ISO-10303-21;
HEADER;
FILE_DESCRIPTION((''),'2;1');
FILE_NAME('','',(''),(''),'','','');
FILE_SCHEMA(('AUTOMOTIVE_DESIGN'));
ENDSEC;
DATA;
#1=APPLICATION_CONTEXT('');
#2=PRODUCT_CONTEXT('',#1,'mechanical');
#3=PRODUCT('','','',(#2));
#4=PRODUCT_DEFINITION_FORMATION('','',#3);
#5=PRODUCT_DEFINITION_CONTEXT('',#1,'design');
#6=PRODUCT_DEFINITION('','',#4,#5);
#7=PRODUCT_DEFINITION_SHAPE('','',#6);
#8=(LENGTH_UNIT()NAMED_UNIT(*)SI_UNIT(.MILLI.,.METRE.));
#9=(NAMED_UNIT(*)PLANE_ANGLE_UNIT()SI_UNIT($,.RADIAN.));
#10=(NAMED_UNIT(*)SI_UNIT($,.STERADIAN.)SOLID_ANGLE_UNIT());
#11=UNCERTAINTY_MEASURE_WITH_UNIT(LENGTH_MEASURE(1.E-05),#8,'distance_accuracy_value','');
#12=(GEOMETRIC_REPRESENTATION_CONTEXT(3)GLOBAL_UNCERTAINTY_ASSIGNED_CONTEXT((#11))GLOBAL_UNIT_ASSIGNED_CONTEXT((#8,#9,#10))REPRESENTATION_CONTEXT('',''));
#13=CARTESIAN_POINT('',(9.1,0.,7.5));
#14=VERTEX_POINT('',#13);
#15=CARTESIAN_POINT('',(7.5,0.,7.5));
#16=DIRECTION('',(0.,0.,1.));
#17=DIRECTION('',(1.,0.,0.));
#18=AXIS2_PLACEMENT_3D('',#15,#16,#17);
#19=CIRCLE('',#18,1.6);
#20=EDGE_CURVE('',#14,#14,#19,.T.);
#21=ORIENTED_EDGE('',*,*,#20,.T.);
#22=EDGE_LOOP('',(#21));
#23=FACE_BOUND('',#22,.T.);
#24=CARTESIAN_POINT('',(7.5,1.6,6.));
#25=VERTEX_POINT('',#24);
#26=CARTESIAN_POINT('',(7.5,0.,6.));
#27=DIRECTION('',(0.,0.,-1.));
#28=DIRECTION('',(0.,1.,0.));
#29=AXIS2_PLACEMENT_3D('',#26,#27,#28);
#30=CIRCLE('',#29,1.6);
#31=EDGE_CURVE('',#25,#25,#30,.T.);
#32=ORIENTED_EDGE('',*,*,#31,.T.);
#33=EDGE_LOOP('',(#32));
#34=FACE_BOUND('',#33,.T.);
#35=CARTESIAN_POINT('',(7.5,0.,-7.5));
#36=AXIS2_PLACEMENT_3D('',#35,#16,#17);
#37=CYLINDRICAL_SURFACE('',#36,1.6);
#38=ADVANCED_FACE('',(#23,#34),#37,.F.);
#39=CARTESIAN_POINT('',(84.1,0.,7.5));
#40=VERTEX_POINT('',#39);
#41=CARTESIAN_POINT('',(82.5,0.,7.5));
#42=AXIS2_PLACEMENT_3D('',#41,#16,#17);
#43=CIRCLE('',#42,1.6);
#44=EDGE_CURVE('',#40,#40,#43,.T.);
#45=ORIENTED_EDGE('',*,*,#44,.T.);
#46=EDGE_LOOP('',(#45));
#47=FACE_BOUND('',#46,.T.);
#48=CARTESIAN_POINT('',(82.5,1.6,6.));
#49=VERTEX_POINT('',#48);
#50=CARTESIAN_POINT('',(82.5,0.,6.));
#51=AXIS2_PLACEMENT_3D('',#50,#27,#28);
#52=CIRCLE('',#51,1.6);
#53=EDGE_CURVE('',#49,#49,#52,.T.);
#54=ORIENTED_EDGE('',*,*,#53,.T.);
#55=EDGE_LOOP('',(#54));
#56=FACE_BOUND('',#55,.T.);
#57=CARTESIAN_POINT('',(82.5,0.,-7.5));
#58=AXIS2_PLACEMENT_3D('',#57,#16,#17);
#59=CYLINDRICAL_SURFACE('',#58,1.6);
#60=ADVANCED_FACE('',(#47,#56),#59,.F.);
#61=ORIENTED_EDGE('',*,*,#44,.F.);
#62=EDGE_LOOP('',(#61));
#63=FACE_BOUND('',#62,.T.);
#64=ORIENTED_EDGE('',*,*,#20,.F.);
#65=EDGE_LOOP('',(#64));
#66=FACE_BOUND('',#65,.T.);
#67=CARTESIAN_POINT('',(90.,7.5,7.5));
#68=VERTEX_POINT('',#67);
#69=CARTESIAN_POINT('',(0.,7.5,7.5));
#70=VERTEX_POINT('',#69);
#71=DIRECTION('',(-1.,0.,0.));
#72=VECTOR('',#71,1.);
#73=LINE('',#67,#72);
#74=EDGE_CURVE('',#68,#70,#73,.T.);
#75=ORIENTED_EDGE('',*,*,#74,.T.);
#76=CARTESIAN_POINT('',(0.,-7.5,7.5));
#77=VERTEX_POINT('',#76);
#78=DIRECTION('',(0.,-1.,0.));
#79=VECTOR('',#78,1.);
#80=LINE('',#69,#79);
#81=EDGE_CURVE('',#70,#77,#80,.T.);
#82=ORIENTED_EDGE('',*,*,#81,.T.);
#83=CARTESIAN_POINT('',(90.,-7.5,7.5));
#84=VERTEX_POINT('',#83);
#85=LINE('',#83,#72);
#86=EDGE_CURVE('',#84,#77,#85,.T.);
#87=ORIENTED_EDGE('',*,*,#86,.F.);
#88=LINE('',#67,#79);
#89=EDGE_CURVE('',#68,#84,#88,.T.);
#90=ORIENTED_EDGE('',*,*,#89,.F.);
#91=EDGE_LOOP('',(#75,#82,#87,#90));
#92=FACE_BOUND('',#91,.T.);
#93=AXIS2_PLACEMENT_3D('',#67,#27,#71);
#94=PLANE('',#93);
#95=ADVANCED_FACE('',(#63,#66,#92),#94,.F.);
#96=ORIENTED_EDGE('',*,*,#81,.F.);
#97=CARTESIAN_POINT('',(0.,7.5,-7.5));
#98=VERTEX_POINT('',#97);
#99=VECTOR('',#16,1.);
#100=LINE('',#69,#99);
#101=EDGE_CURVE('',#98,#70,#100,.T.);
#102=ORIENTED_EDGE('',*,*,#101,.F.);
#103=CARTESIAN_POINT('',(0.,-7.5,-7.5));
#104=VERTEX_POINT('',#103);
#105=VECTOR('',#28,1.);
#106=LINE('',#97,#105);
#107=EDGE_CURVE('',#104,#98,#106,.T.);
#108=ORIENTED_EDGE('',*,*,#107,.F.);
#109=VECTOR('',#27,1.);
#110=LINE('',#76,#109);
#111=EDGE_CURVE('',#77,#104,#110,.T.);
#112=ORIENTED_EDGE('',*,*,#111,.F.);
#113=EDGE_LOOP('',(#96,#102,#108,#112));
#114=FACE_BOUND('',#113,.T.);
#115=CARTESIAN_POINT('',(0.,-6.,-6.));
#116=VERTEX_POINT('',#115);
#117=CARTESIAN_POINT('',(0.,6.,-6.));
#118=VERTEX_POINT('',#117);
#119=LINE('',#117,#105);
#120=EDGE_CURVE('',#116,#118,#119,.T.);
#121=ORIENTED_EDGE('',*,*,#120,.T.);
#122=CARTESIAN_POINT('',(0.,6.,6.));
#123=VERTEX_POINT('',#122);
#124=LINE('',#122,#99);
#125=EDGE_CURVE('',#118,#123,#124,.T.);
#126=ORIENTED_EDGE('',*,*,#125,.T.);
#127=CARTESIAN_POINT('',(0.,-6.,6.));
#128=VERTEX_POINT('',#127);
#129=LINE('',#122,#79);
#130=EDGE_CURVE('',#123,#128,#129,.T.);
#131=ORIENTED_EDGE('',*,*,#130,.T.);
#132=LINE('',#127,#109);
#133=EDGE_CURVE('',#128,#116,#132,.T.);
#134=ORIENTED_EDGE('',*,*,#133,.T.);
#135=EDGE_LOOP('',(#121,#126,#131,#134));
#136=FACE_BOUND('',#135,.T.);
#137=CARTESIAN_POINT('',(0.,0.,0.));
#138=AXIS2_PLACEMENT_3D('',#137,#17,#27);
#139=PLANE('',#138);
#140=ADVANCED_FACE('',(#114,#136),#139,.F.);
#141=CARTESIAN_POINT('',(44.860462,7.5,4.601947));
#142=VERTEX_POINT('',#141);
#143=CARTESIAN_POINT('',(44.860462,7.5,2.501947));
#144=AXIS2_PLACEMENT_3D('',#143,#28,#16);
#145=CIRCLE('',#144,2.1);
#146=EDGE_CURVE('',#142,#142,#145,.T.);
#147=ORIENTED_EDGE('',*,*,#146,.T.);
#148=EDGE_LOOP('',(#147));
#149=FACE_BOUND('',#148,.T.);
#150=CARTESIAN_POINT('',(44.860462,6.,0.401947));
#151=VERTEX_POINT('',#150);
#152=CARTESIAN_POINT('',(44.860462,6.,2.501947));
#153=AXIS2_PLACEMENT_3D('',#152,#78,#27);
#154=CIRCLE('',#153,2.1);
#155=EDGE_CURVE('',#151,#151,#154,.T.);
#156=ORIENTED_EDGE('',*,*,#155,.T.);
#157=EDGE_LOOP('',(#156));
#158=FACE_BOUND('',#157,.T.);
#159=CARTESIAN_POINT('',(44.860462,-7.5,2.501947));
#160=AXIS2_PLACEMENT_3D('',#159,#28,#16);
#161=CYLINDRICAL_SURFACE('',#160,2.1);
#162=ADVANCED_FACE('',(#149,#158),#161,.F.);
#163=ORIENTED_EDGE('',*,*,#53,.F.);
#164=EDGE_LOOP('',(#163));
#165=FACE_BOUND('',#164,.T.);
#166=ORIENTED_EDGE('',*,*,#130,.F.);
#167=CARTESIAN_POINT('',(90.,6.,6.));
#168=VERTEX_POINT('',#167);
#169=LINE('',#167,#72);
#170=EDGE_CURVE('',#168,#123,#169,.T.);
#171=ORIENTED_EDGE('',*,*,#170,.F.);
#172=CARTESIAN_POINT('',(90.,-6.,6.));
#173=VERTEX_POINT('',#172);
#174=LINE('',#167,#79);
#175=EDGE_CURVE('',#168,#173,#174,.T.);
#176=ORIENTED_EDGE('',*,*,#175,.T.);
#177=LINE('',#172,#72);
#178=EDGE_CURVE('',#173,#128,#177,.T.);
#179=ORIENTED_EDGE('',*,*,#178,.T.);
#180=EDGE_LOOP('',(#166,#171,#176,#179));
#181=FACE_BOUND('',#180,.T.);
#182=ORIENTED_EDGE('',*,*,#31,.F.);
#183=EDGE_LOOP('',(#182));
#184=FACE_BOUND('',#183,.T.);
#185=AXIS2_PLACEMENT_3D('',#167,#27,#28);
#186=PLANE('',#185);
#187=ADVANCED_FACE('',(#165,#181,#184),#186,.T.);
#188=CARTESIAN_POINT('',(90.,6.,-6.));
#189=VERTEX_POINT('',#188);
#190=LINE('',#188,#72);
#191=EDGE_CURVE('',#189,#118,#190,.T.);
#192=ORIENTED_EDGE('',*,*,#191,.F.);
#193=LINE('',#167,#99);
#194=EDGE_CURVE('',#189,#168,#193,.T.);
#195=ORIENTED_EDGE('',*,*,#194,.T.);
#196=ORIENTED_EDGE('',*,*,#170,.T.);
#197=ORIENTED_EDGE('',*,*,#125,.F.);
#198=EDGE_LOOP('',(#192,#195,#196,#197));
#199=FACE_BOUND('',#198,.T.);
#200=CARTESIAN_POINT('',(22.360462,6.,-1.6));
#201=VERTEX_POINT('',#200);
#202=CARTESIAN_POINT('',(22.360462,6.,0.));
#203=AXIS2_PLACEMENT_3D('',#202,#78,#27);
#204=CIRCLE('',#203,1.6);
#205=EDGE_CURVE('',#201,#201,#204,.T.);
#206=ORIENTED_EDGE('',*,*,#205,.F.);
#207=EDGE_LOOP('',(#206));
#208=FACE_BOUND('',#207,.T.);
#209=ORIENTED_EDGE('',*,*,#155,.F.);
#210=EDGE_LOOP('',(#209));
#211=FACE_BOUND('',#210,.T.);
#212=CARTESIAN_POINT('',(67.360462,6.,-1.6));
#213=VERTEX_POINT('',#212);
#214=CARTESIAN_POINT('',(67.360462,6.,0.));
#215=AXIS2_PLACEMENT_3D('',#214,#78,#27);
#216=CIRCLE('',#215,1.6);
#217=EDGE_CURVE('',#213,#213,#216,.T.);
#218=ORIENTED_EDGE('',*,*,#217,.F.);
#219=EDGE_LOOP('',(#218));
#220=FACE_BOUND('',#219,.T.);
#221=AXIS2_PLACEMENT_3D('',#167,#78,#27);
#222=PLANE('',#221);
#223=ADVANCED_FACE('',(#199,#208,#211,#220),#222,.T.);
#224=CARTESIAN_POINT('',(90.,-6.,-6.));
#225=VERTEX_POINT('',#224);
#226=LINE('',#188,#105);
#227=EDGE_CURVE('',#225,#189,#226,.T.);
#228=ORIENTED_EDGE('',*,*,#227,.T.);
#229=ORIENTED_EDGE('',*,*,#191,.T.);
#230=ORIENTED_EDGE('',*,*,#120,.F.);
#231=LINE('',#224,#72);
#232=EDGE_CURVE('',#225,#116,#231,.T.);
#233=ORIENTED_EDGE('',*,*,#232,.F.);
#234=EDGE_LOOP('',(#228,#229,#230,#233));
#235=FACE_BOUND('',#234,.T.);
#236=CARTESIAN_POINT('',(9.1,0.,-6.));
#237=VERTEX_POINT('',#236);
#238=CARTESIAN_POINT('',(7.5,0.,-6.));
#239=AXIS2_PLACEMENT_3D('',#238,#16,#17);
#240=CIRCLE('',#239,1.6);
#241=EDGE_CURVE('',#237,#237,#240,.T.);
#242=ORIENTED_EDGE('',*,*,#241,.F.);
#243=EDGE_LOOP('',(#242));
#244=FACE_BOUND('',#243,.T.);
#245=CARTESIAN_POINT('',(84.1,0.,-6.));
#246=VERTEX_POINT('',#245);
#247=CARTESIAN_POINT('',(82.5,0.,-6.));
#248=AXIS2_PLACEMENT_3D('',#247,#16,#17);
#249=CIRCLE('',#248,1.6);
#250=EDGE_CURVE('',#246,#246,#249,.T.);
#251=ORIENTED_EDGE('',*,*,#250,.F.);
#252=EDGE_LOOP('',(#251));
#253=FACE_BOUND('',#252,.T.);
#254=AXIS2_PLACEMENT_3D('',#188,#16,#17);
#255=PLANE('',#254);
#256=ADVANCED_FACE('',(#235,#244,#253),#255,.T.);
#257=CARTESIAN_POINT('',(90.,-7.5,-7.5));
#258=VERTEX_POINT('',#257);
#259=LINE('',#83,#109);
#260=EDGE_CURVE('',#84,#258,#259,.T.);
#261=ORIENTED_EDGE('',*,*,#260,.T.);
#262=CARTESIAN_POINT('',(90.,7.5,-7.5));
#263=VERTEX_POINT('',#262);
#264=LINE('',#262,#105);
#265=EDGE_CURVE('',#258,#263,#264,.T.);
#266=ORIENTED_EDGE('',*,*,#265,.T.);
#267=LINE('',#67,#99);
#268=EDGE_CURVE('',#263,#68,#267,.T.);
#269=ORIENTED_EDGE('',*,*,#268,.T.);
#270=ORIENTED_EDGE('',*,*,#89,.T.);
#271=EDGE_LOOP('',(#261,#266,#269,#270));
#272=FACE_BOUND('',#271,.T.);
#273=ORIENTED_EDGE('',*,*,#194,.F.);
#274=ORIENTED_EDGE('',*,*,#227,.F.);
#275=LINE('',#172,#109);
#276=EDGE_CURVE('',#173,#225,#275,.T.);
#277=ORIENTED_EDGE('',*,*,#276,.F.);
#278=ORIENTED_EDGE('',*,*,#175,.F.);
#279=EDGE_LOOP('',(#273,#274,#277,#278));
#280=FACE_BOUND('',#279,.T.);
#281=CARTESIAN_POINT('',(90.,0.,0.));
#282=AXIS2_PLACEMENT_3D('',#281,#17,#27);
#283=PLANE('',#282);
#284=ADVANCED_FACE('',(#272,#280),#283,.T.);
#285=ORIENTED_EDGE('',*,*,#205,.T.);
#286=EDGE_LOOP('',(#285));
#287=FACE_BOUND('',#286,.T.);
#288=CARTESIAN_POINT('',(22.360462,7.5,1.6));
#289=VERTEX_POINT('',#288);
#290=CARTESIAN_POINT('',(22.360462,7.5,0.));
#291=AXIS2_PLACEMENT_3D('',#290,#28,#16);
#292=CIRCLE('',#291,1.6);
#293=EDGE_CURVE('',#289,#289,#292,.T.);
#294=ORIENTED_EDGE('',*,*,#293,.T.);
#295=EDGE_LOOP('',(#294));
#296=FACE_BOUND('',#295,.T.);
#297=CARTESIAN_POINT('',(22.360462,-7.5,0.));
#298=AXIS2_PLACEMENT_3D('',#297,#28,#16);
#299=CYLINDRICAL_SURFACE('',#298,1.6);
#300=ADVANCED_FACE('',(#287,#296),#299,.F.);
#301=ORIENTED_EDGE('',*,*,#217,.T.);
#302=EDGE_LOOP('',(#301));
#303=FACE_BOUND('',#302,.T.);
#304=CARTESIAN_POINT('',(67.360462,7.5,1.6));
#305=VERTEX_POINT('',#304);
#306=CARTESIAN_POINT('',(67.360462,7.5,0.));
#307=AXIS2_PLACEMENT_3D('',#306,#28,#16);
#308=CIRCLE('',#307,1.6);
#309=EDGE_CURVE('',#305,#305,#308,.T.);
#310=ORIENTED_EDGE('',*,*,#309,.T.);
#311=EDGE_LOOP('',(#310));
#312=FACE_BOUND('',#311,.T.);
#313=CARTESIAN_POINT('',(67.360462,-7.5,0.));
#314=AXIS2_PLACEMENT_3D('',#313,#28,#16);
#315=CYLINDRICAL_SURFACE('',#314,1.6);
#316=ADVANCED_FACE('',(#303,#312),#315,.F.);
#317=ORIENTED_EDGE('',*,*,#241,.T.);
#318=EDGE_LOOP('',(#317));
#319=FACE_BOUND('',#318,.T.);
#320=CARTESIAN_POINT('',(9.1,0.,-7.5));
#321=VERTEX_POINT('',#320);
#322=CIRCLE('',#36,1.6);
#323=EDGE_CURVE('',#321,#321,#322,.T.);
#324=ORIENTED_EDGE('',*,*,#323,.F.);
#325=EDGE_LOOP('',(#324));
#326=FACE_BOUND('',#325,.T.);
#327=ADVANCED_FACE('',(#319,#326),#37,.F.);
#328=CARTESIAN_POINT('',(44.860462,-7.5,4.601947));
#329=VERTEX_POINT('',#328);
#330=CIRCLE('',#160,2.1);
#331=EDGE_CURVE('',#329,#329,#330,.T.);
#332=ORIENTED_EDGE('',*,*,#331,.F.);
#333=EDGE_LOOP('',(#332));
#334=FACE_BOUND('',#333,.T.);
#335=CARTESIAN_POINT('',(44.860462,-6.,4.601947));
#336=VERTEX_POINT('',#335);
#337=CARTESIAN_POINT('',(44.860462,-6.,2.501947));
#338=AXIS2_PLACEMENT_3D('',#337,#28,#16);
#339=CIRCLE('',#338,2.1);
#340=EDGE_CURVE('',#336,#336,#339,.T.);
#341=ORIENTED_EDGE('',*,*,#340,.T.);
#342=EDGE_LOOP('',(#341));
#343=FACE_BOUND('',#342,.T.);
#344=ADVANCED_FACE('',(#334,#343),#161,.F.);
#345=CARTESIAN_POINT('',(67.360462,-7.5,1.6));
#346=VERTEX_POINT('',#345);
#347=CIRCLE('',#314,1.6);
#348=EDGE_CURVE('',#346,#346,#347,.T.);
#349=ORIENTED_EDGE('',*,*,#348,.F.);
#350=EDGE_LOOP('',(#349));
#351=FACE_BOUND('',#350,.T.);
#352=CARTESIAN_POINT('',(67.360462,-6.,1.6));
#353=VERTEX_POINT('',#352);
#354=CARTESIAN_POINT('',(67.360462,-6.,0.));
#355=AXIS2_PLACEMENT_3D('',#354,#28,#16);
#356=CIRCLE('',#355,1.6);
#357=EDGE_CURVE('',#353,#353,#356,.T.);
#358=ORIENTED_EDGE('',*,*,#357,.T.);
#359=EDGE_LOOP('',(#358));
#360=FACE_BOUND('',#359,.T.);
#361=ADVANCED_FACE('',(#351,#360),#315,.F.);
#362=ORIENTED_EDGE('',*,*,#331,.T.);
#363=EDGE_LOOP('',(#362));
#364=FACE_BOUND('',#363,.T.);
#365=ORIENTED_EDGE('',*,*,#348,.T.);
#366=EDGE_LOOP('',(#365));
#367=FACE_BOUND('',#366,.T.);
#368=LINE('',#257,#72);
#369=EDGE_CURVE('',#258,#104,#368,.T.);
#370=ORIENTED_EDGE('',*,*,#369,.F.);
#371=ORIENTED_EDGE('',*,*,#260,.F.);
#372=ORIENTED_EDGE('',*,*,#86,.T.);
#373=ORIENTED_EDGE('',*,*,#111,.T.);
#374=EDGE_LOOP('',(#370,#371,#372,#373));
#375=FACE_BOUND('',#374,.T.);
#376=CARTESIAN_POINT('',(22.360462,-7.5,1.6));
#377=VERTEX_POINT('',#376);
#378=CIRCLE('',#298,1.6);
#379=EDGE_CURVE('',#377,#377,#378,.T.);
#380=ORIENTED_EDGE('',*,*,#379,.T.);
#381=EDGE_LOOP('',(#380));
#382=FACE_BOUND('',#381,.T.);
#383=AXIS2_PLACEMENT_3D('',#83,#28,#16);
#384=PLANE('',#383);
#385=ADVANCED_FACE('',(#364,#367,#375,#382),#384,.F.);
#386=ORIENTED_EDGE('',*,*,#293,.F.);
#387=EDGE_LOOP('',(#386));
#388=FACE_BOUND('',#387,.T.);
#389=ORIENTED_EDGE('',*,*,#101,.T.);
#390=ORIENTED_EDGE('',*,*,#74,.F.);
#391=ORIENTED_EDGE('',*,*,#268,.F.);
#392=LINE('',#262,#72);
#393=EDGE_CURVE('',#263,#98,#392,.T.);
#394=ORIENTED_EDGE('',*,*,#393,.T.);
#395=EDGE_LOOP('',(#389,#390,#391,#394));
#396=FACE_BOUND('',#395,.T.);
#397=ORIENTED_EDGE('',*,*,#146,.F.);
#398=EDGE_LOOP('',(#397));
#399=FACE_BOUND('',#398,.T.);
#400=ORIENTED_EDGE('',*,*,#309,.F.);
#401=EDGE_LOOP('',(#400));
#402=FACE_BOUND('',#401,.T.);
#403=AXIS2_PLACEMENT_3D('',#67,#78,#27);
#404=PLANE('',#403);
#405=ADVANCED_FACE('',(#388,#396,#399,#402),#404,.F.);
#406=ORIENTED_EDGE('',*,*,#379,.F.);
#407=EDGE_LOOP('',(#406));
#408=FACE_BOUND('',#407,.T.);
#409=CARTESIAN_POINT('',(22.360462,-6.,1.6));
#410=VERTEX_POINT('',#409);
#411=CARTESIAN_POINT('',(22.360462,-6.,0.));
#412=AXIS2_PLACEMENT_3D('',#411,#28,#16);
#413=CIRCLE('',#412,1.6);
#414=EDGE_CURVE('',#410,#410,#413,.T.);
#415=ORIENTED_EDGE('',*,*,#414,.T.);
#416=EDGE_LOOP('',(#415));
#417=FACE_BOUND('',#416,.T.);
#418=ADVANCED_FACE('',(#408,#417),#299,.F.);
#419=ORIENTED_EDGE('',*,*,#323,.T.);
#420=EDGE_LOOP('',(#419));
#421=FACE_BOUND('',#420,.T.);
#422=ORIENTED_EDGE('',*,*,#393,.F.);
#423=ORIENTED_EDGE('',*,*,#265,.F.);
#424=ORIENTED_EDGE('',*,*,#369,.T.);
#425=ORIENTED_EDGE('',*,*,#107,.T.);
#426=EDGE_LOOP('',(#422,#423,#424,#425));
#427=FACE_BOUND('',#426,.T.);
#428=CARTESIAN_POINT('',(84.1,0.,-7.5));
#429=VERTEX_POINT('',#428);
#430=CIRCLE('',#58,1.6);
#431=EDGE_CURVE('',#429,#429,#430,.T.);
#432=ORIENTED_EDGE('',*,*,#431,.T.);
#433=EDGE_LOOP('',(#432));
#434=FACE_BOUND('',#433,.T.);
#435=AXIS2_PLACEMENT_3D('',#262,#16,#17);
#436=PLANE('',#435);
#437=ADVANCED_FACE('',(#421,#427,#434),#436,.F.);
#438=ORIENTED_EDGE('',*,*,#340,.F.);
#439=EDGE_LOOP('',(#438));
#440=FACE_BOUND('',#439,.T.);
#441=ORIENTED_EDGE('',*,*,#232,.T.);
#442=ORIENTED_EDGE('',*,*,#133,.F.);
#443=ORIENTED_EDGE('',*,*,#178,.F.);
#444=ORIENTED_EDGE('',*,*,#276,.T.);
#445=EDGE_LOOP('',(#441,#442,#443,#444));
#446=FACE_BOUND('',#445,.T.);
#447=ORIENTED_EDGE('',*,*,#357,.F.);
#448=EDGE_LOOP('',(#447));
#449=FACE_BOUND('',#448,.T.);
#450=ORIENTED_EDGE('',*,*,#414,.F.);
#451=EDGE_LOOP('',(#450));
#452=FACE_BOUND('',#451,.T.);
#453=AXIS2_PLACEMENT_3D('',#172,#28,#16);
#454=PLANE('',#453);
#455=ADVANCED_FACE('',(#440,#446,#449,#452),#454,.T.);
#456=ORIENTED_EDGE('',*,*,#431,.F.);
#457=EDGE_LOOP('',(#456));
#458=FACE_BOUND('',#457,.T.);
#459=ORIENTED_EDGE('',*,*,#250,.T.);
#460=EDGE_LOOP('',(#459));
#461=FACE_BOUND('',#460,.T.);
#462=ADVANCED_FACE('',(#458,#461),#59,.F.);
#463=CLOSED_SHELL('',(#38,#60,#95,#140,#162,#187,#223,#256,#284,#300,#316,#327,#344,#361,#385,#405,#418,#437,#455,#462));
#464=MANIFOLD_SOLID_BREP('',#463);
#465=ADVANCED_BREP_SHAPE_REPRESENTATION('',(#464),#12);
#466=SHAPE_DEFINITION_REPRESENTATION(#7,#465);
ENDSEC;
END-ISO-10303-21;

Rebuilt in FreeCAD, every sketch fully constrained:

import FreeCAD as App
import Part
import Sketcher
from FreeCAD import Vector
Q = App.Units.Quantity

doc = App.newDocument("Part")
params = doc.addObject("Spreadsheet::Sheet", "Params")
for row, (alias, value) in enumerate([
    ("sketch1_width", "15 mm"),
    ("sketch1_width2", "12 mm"),
    ("pad1_length", "90 mm"),
    ("sketch2_diameter", "4.2 mm"),
    ("sketch2_diameter2", "3.2 mm"),
    ("sketch3_diameter", "3.2 mm"),
], start=1):
    params.set(f"A{row}", alias)
    params.set(f"B{row}", "=" + value)
    params.setAlias(f"B{row}", alias)

body = doc.addObject("PartDesign::Body", "Body")

sketch1 = body.newObject("Sketcher::SketchObject", "Sketch")
sketch1.AttachmentSupport = (doc.getObject("YZ_Plane"), [""])
sketch1.MapMode = "FlatFace"
sketch1.addGeometry([
    Part.LineSegment(Vector(7.5, 7.5, 0), Vector(-7.5, 7.5, 0)),
    Part.LineSegment(Vector(-7.5, 7.5, 0), Vector(-7.5, -7.5, 0)),
    Part.LineSegment(Vector(-7.5, -7.5, 0), Vector(7.5, -7.5, 0)),
    Part.LineSegment(Vector(7.5, -7.5, 0), Vector(7.5, 7.5, 0)),
    Part.LineSegment(Vector(-6, -6, 0), Vector(-6, 6, 0)),
    Part.LineSegment(Vector(-6, 6, 0), Vector(6, 6, 0)),
    Part.LineSegment(Vector(6, 6, 0), Vector(6, -6, 0)),
    Part.LineSegment(Vector(6, -6, 0), Vector(-6, -6, 0)),
], False)
sketch1.addConstraint([
    Sketcher.Constraint("Coincident", 0, 2, 1, 1),
    Sketcher.Constraint("Coincident", 1, 2, 2, 1),
    Sketcher.Constraint("Coincident", 2, 2, 3, 1),
    Sketcher.Constraint("Coincident", 3, 2, 0, 1),
    Sketcher.Constraint("Coincident", 4, 2, 5, 1),
    Sketcher.Constraint("Coincident", 5, 2, 6, 1),
    Sketcher.Constraint("Coincident", 6, 2, 7, 1),
    Sketcher.Constraint("Coincident", 7, 2, 4, 1),
    Sketcher.Constraint("Horizontal", 0),
    Sketcher.Constraint("Vertical", 1),
    Sketcher.Constraint("Horizontal", 2),
    Sketcher.Constraint("Vertical", 3),
    Sketcher.Constraint("Vertical", 4),
    Sketcher.Constraint("Horizontal", 5),
    Sketcher.Constraint("Vertical", 6),
    Sketcher.Constraint("Horizontal", 7),
    Sketcher.Constraint("Symmetric", 0, 2, 2, 2, -1, 1),
    Sketcher.Constraint("Symmetric", 4, 2, 6, 2, -1, 1),
    Sketcher.Constraint("Equal", 2, 1),
    Sketcher.Constraint("Equal", 7, 4),
    Sketcher.Constraint("DistanceX", 0, 2, 0, 1, Q("15 mm")),
    Sketcher.Constraint("DistanceX", 5, 1, 5, 2, Q("12 mm")),
])
sketch1.setExpression("Constraints[20]", "Params.sketch1_width")
sketch1.setExpression("Constraints[21]", "Params.sketch1_width2")
pad1 = body.newObject("PartDesign::Pad", "Pad")
pad1.Profile = sketch1
pad1.setExpression("Length", "Params.pad1_length")

sketch2 = body.newObject("Sketcher::SketchObject", "Sketch001")
sketch2.AttachmentSupport = (doc.getObject("XZ_Plane"), [""])
sketch2.MapMode = "FlatFace"
sketch2.AttachmentOffset = App.Placement(Vector(0, 0, -7.5), App.Rotation())
sketch2.addGeometry([
    Part.Circle(Vector(44.860462, 2.501947, 0), Vector(0, 0, 1), 2.1),
    Part.Circle(Vector(22.360462, 0, 0), Vector(0, 0, 1), 1.6),
    Part.Circle(Vector(67.360462, 0, 0), Vector(0, 0, 1), 1.6),
], False)
sketch2.addConstraint([
    Sketcher.Constraint("Equal", 1, 2),
    Sketcher.Constraint("PointOnObject", 1, 3, -1),
    Sketcher.Constraint("PointOnObject", 2, 3, -1),
    Sketcher.Constraint("Diameter", 0, Q("4.2 mm")),
    Sketcher.Constraint("Diameter", 1, Q("3.2 mm")),
    Sketcher.Constraint("DistanceX", 1, 3, 2, 3, Q("45 mm")),
    Sketcher.Constraint("DistanceX", 1, 3, 0, 3, Q("22.5 mm")),
    Sketcher.Constraint("DistanceX", -1, 1, 0, 3, Q("44.860462 mm")),
    Sketcher.Constraint("DistanceY", -1, 1, 0, 3, Q("2.501947 mm")),
])
sketch2.setExpression("Constraints[3]", "Params.sketch2_diameter")
sketch2.setExpression("Constraints[4]", "Params.sketch2_diameter2")
pocket1 = body.newObject("PartDesign::Pocket", "Pocket")
pocket1.Profile = sketch2
pocket1.Type = "ThroughAll"
pocket1.Reversed = True

sketch3 = body.newObject("Sketcher::SketchObject", "Sketch002")
sketch3.AttachmentSupport = (doc.getObject("XY_Plane"), [""])
sketch3.MapMode = "FlatFace"
sketch3.AttachmentOffset = App.Placement(Vector(0, 0, 7.5), App.Rotation())
sketch3.addGeometry([
    Part.Circle(Vector(7.5, 0, 0), Vector(0, 0, 1), 1.6),
    Part.Circle(Vector(82.5, 0, 0), Vector(0, 0, 1), 1.6),
], False)
sketch3.addConstraint([
    Sketcher.Constraint("Equal", 0, 1),
    Sketcher.Constraint("PointOnObject", 0, 3, -1),
    Sketcher.Constraint("PointOnObject", 1, 3, -1),
    Sketcher.Constraint("Diameter", 0, Q("3.2 mm")),
    Sketcher.Constraint("DistanceX", 0, 3, 1, 3, Q("75 mm")),
    Sketcher.Constraint("DistanceX", -1, 1, 0, 3, Q("7.5 mm")),
])
sketch3.setExpression("Constraints[3]", "Params.sketch3_diameter")
pocket2 = body.newObject("PartDesign::Pocket", "Pocket001")
pocket2.Profile = sketch3
pocket2.Type = "ThroughAll"

doc.recompute()
